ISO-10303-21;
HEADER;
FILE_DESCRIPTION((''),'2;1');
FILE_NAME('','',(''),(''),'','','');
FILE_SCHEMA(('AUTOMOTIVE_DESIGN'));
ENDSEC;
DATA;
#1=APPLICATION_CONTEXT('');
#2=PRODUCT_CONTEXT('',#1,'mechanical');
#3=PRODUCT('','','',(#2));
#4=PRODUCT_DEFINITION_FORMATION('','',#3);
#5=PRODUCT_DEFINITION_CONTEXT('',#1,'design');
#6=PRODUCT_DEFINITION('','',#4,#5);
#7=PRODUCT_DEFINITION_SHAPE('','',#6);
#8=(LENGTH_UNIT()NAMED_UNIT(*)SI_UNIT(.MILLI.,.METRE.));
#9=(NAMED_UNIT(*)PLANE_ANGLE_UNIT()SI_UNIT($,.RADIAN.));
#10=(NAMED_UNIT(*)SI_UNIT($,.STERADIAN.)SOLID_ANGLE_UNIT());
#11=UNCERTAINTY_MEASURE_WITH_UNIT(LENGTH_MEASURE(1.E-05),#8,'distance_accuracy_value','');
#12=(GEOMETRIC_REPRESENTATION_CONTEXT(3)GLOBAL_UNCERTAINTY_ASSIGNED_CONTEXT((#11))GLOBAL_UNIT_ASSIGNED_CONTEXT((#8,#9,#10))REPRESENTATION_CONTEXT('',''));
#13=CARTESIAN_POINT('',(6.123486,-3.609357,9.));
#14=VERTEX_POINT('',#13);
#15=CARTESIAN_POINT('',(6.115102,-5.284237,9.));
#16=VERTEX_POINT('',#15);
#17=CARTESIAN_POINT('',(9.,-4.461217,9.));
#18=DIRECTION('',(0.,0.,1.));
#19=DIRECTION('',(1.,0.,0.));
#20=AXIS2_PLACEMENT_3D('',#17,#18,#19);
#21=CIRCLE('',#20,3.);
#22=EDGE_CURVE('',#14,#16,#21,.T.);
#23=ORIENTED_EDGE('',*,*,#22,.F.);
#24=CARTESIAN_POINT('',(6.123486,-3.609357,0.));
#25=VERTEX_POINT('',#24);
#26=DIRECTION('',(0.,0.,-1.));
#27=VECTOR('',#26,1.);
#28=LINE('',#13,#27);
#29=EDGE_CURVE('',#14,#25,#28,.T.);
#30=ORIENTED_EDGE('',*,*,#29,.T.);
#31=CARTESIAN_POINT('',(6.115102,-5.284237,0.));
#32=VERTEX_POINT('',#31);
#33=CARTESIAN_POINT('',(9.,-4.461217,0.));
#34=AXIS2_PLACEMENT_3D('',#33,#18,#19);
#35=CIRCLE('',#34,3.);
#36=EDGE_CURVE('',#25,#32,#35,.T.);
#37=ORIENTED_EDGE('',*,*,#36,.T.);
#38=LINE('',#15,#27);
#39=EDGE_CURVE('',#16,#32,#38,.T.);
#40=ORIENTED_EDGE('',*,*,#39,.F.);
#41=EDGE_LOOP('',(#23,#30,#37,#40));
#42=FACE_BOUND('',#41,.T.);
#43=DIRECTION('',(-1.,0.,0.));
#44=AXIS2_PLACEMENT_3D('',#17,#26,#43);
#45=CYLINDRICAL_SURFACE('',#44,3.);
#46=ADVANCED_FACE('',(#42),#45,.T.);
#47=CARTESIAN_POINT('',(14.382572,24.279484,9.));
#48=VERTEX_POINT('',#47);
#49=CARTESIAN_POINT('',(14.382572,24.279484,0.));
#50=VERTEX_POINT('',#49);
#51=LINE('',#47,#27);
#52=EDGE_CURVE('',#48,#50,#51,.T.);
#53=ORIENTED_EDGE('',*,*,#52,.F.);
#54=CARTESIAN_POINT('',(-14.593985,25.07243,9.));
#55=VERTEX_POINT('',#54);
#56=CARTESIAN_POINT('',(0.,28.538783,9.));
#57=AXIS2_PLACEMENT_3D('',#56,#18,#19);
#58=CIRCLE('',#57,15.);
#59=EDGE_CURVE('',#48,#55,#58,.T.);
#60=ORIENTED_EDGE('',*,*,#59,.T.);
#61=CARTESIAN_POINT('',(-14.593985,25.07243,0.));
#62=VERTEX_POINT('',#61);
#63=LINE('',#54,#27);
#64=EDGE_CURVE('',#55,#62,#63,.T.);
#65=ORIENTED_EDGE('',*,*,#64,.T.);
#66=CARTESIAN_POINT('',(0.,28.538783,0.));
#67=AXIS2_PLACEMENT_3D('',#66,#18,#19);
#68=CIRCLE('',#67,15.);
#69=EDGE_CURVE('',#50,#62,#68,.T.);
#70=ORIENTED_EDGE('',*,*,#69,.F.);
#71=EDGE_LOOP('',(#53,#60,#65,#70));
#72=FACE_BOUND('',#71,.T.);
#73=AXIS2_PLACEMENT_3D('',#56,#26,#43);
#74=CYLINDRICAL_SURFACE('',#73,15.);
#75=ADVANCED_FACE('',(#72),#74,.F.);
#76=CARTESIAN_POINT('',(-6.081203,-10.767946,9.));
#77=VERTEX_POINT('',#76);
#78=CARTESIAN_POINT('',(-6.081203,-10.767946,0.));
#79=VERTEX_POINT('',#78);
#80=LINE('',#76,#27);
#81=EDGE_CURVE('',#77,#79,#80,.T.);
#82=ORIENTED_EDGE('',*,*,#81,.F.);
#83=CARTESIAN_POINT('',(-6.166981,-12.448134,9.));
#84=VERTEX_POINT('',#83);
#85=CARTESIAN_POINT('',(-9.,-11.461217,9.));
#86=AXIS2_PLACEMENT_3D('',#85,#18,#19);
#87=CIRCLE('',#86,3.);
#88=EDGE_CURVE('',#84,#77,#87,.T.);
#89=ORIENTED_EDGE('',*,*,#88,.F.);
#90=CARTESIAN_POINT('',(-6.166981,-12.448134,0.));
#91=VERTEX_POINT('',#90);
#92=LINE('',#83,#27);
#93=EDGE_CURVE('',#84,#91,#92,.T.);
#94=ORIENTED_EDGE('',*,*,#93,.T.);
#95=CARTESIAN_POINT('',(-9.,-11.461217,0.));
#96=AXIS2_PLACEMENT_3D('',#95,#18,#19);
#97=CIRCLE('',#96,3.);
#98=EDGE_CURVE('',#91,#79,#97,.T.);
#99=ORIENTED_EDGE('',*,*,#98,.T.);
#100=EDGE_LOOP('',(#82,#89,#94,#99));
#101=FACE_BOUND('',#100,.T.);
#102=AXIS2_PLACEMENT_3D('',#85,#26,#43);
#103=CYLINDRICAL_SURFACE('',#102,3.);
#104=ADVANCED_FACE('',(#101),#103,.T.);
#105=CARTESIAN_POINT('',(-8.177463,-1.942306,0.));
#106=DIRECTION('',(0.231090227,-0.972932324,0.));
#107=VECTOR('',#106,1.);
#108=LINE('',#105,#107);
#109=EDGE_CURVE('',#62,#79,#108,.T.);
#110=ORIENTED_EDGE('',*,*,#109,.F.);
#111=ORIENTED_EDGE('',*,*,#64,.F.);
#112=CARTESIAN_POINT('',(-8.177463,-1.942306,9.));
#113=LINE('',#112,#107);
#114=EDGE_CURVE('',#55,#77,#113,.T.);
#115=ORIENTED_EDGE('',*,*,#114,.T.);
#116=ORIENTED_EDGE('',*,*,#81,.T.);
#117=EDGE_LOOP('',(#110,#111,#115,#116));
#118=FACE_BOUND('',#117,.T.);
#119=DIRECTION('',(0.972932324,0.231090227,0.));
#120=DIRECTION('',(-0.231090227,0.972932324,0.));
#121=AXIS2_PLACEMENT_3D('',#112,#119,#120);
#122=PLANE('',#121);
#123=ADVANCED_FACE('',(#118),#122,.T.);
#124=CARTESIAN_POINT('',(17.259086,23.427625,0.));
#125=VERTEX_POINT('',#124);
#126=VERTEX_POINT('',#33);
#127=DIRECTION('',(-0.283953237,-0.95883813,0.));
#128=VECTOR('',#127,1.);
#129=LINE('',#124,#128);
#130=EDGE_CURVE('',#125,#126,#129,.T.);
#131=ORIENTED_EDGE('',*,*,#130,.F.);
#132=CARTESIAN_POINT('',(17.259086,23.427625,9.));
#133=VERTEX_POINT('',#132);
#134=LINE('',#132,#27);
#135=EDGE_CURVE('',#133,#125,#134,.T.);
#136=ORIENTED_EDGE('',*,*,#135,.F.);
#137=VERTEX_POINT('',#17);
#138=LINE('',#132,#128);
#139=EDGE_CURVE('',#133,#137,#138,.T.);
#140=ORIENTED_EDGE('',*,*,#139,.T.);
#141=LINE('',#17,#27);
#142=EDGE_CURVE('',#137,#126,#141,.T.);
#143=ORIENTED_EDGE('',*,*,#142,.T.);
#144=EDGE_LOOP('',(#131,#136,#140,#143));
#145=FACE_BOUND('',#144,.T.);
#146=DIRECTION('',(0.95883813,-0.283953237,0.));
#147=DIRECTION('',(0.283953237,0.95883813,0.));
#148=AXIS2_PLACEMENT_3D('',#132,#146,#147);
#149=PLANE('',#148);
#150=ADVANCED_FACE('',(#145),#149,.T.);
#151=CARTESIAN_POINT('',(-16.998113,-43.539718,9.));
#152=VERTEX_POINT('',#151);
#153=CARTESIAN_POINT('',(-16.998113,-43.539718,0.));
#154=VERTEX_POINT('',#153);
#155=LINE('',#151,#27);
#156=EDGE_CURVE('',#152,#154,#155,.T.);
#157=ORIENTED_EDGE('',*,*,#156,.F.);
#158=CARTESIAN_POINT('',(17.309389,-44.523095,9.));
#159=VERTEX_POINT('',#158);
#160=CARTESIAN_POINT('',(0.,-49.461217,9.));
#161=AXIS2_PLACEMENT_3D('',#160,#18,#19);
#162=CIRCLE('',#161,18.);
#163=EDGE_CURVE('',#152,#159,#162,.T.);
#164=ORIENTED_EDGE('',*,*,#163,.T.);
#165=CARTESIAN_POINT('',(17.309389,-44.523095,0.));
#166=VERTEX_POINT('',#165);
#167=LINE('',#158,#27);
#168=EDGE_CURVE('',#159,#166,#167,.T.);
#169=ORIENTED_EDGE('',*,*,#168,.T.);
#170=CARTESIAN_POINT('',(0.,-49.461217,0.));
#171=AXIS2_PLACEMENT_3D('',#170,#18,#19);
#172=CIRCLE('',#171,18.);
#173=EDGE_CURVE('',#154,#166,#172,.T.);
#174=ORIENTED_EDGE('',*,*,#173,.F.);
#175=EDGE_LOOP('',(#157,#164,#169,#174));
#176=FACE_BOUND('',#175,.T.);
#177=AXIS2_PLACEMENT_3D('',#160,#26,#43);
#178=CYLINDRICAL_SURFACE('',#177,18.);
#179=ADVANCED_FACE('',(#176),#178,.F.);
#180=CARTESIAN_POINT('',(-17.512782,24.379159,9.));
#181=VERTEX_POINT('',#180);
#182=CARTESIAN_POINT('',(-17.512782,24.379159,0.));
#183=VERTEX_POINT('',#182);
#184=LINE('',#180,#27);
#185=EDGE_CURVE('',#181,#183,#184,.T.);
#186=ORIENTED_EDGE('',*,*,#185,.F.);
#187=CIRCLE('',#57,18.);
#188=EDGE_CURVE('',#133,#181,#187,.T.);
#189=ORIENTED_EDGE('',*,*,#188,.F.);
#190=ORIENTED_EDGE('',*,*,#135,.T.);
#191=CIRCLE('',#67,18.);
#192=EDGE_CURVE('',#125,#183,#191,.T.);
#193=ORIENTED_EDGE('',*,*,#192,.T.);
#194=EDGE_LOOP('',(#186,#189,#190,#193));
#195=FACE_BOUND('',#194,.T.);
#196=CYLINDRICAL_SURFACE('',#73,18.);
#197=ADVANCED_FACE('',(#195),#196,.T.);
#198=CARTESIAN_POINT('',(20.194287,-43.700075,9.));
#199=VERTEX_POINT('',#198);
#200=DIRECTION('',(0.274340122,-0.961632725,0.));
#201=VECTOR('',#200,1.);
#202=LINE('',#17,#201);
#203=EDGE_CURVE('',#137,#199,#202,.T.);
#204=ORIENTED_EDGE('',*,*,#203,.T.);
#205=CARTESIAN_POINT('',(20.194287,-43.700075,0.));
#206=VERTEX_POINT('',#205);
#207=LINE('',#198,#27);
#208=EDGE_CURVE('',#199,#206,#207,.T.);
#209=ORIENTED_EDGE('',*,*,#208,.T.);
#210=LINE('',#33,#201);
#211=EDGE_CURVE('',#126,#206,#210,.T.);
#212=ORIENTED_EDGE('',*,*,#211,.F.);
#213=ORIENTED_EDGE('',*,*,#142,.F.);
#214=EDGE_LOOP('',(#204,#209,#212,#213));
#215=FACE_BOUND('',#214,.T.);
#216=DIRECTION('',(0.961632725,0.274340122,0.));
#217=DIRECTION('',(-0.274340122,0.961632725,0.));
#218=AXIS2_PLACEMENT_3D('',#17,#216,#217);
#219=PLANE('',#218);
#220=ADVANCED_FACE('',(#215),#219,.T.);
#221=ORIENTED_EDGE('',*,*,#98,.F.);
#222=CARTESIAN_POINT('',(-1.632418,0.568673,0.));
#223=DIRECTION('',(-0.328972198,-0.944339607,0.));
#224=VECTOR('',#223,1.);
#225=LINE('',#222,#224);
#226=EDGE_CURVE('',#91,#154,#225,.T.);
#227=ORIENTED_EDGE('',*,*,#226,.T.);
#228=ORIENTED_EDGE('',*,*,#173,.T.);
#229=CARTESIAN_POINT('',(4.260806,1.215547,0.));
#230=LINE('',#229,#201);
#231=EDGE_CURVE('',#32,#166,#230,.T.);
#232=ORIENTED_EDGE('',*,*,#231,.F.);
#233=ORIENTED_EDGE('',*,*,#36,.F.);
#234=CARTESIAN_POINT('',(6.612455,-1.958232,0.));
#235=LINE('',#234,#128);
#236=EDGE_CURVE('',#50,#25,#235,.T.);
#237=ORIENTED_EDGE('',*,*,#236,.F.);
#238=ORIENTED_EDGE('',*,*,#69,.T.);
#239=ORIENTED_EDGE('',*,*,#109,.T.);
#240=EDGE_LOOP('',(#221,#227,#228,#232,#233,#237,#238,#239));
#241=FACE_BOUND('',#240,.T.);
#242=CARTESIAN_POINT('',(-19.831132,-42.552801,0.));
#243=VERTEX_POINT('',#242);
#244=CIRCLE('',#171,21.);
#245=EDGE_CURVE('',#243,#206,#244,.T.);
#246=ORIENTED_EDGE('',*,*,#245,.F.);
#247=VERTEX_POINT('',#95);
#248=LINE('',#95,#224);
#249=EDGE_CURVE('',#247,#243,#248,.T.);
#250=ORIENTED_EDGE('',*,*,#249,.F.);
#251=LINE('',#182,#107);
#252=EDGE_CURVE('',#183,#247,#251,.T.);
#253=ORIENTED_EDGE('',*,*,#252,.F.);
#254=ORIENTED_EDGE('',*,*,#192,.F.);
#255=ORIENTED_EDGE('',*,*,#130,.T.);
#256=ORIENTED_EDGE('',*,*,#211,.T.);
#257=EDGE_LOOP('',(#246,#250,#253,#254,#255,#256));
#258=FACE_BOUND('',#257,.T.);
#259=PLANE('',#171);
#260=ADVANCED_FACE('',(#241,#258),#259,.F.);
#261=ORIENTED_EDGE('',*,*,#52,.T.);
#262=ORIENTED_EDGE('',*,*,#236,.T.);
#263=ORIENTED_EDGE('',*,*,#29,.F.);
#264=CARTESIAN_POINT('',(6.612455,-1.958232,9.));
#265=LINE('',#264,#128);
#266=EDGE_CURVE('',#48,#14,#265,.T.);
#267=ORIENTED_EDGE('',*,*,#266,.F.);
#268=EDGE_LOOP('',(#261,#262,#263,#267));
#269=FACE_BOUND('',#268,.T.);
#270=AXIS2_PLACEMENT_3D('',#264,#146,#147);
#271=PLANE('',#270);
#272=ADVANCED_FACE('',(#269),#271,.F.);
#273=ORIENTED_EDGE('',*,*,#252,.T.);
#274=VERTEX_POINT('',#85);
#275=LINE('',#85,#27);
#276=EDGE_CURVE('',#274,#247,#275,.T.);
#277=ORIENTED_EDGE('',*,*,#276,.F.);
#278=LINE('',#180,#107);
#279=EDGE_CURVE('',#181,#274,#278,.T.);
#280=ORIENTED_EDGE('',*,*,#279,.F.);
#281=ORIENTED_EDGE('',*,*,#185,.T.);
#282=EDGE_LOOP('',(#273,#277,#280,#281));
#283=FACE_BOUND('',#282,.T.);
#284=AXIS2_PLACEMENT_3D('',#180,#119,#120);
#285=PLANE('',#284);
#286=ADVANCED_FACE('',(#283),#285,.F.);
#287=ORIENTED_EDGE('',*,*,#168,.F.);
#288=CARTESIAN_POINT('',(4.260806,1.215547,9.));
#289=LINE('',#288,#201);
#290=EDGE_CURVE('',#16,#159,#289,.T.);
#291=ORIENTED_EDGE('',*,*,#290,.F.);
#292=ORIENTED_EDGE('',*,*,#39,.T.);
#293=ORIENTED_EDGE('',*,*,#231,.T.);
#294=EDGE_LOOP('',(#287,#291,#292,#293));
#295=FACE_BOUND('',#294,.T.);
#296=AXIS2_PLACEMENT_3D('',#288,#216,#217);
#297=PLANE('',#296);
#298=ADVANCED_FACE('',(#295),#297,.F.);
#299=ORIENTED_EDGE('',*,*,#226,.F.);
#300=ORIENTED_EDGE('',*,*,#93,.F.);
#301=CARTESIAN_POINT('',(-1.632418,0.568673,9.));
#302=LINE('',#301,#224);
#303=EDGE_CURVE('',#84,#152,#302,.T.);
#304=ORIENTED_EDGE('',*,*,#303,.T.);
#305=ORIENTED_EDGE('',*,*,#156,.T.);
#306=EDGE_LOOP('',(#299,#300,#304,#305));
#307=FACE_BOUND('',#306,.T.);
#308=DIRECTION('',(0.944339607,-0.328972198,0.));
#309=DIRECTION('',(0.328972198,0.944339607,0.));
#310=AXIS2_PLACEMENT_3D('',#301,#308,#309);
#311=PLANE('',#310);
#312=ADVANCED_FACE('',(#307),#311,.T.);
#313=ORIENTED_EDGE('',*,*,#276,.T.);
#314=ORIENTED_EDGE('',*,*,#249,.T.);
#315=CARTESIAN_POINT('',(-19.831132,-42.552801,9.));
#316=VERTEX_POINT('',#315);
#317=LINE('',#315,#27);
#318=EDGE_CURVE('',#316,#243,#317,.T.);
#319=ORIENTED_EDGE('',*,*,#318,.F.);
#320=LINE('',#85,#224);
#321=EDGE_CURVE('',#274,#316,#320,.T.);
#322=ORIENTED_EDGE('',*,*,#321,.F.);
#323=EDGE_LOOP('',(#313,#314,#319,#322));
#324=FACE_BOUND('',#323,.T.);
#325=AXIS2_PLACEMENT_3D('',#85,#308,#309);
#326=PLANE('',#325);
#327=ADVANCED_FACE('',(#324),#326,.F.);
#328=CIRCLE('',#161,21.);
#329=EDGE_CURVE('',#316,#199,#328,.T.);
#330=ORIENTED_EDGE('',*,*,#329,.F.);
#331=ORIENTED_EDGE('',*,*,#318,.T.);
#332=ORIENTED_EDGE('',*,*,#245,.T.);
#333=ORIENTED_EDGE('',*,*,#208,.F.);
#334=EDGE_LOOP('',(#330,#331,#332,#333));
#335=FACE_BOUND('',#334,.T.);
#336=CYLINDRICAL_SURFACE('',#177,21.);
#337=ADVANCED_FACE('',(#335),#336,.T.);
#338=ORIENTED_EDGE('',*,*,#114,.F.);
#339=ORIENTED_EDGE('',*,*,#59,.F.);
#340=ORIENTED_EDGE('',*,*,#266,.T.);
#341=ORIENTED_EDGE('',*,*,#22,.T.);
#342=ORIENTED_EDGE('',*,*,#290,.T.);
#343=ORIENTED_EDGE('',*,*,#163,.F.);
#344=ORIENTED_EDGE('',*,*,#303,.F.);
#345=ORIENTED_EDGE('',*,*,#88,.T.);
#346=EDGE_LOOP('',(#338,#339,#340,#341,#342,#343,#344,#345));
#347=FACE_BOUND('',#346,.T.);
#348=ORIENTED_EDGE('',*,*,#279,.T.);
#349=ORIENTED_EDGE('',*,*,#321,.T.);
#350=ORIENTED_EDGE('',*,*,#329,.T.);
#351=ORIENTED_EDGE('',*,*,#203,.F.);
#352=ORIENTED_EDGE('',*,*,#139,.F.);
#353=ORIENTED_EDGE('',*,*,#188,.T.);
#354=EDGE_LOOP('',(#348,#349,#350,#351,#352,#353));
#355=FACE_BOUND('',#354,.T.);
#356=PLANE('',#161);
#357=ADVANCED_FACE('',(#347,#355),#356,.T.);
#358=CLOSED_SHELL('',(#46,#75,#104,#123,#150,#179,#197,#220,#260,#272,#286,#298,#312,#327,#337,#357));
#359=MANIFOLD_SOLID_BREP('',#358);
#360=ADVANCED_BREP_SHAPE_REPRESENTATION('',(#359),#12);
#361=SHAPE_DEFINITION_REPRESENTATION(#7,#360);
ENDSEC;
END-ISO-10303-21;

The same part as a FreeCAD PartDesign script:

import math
import FreeCAD as App
import Part
import Sketcher
from FreeCAD import Vector

doc = App.newDocument("Part")
body = doc.addObject("PartDesign::Body", "Body")

sketch1 = body.newObject("Sketcher::SketchObject", "Sketch")
sketch1.AttachmentSupport = (doc.getObject("XY_Plane"), [""])
sketch1.MapMode = "FlatFace"
sketch1.addGeometry(Part.LineSegment(Vector(20.2, -43.7, 0), Vector(9, -4.5, 0)), False)
sketch1.addGeometry(Part.LineSegment(Vector(9, -4.5, 0), Vector(17.3, 23.4, 0)), False)
sketch1.addGeometry(Part.ArcOfCircle(Part.Circle(Vector(0, 28.5, 0), Vector(0, 0, 1), 18), math.radians(-16), math.radians(193)), False)
sketch1.addGeometry(Part.LineSegment(Vector(-17.5, 24.4, 0), Vector(-9, -11.5, 0)), False)
sketch1.addGeometry(Part.LineSegment(Vector(-9, -11.5, 0), Vector(-19.8, -42.6, 0)), False)
sketch1.addGeometry(Part.ArcOfCircle(Part.Circle(Vector(0, -49.5, 0), Vector(0, 0, 1), 21), math.radians(161), math.radians(376)), False)
sketch1.addGeometry(Part.ArcOfCircle(Part.Circle(Vector(0, 28.5, 0), Vector(0, 0, 1), 15), math.radians(-16), math.radians(193)), False)
sketch1.addGeometry(Part.LineSegment(Vector(14.4, 24.3, 0), Vector(6.1, -3.6, 0)), False)
sketch1.addGeometry(Part.ArcOfCircle(Part.Circle(Vector(9, -4.5, 0), Vector(0, 0, 1), 3), math.radians(164), math.radians(196)), False)
sketch1.addGeometry(Part.LineSegment(Vector(6.1, -5.3, 0), Vector(17.3, -44.5, 0)), False)
sketch1.addGeometry(Part.ArcOfCircle(Part.Circle(Vector(0, -49.5, 0), Vector(0, 0, 1), 18), math.radians(161), math.radians(376)), False)
sketch1.addGeometry(Part.LineSegment(Vector(-17, -43.5, 0), Vector(-6.2, -12.4, 0)), False)
sketch1.addGeometry(Part.ArcOfCircle(Part.Circle(Vector(-9, -11.5, 0), Vector(0, 0, 1), 3), math.radians(-19), math.radians(13)), False)
sketch1.addGeometry(Part.LineSegment(Vector(-6.1, -10.8, 0), Vector(-14.6, 25.1, 0)), False)
sketch1.addConstraint(Sketcher.Constraint("Coincident", 0, 2, 1, 1))
sketch1.addConstraint(Sketcher.Constraint("Tangent", 1, 2, 2, 1))
sketch1.addConstraint(Sketcher.Constraint("Tangent", 2, 2, 3, 1))
sketch1.addConstraint(Sketcher.Constraint("Coincident", 3, 2, 4, 1))
sketch1.addConstraint(Sketcher.Constraint("Tangent", 4, 2, 5, 1))
sketch1.addConstraint(Sketcher.Constraint("Tangent", 5, 2, 0, 1))
sketch1.addConstraint(Sketcher.Constraint("Tangent", 6, 1, 7, 1))
sketch1.addConstraint(Sketcher.Constraint("Tangent", 7, 2, 8, 1))
sketch1.addConstraint(Sketcher.Constraint("Tangent", 8, 2, 9, 1))
sketch1.addConstraint(Sketcher.Constraint("Tangent", 9, 2, 10, 2))
sketch1.addConstraint(Sketcher.Constraint("Tangent", 10, 1, 11, 1))
sketch1.addConstraint(Sketcher.Constraint("Tangent", 11, 2, 12, 1))
sketch1.addConstraint(Sketcher.Constraint("Tangent", 12, 2, 13, 1))
sketch1.addConstraint(Sketcher.Constraint("Tangent", 13, 2, 6, 2))
sketch1.addConstraint(Sketcher.Constraint("Coincident", 6, 3, 2, 3))
sketch1.addConstraint(Sketcher.Constraint("Coincident", 10, 3, 5, 3))
sketch1.addConstraint(Sketcher.Constraint("Coincident", 0, 2, 8, 3))
sketch1.addConstraint(Sketcher.Constraint("Coincident", 3, 2, 12, 3))
sketch1.addConstraint(Sketcher.Constraint("Equal", 2, 10))
sketch1.addConstraint(Sketcher.Constraint("Equal", 8, 12))
sketch1.addConstraint(Sketcher.Constraint("PointOnObject", 2, 3, -2))
sketch1.addConstraint(Sketcher.Constraint("PointOnObject", 5, 3, -2))
sketch1.addConstraint(Sketcher.Constraint("Parallel", 1, 7))
sketch1.addConstraint(Sketcher.Constraint("Parallel", 0, 9))
sketch1.addConstraint(Sketcher.Constraint("Radius", 2, 18.0))
sketch1.addConstraint(Sketcher.Constraint("Radius", 5, 21.0))
sketch1.addConstraint(Sketcher.Constraint("DistanceX", -1, 1, 8, 3, 9.0))
sketch1.addConstraint(Sketcher.Constraint("DistanceX", 12, 3, -1, 1, 9.0))
sketch1.addConstraint(Sketcher.Constraint("DistanceY", 5, 3, 2, 3, 78.0))
sketch1.addConstraint(Sketcher.Constraint("DistanceY", 8, 3, 2, 3, 33.0))
sketch1.addConstraint(Sketcher.Constraint("DistanceY", 12, 3, 8, 3, 7.0))
sketch1.addConstraint(Sketcher.Constraint("DistanceY", 4, 2, -1, 1, 42.552801))
pad1 = body.newObject("PartDesign::Pad", "Pad")
pad1.Profile = sketch1
pad1.Length = 9

doc.recompute()
